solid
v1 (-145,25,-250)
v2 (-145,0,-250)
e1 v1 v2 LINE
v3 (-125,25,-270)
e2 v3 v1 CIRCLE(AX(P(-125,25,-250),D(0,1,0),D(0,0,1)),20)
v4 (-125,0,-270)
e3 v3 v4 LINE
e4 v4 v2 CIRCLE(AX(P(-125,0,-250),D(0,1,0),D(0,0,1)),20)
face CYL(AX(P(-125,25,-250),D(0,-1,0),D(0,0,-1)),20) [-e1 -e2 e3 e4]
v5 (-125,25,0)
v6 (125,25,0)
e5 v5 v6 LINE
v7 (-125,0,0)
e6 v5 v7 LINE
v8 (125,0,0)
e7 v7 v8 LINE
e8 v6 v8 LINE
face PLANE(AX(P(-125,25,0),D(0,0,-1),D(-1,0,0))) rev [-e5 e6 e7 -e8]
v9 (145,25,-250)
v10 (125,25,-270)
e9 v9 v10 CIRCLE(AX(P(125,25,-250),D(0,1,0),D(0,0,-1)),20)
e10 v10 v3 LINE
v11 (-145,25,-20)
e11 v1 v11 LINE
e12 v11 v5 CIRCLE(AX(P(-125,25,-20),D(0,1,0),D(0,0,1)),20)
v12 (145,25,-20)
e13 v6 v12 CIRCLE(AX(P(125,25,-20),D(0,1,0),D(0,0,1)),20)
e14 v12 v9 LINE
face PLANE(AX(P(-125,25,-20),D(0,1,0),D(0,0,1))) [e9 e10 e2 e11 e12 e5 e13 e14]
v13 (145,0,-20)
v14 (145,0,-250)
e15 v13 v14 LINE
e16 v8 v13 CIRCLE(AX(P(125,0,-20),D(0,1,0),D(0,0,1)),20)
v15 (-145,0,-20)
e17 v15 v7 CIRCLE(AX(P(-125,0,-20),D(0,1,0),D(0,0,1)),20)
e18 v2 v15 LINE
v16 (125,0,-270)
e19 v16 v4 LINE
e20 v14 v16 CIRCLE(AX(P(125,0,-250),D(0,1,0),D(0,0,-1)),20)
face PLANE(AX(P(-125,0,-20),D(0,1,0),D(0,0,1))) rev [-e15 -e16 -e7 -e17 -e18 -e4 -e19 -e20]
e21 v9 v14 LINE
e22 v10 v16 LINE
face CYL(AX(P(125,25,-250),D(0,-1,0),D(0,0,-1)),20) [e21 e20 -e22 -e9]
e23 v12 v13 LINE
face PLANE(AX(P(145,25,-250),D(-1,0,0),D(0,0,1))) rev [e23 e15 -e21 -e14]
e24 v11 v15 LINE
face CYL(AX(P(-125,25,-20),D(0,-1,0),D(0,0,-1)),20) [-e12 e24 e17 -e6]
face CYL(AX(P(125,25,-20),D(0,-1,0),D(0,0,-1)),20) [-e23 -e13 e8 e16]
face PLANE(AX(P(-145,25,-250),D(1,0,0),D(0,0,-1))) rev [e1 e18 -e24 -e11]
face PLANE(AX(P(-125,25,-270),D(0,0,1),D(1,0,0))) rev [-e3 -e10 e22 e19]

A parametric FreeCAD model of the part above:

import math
import FreeCAD as App
import Part
import Sketcher
Q = App.Units.Quantity

doc = App.newDocument("Part")
body = doc.addObject("PartDesign::Body", "Body")

# Sketch on XZ plane
sketch1 = body.newObject("Sketcher::SketchObject", "Sketch")
sketch1.AttachmentSupport = (doc.getObject("XZ_Plane"), [""])
sketch1.MapMode = "FlatFace"
sketch1.addGeometry(Part.LineSegment(App.Vector(125, -270, 0), App.Vector(-125, -270, 0)), False)
sketch1.addGeometry(Part.ArcOfCircle(Part.Circle(App.Vector(-125, -250, 0), App.Vector(0, 0, 1), 20), math.radians(180), math.radians(270)), False)
sketch1.addGeometry(Part.LineSegment(App.Vector(-145, -250, 0), App.Vector(-145, -20, 0)), False)
sketch1.addGeometry(Part.ArcOfCircle(Part.Circle(App.Vector(-125, -20, 0), App.Vector(0, 0, 1), 20), math.radians(90), math.radians(180)), False)
sketch1.addGeometry(Part.LineSegment(App.Vector(-125, 0, 0), App.Vector(125, 0, 0)), False)
sketch1.addGeometry(Part.ArcOfCircle(Part.Circle(App.Vector(125, -20, 0), App.Vector(0, 0, 1), 20), math.radians(0), math.radians(90)), False)
sketch1.addGeometry(Part.LineSegment(App.Vector(145, -20, 0), App.Vector(145, -250, 0)), False)
sketch1.addGeometry(Part.ArcOfCircle(Part.Circle(App.Vector(125, -250, 0), App.Vector(0, 0, 1), 20), math.radians(-90), math.radians(0)), False)
sketch1.addConstraint(Sketcher.Constraint("Tangent", 0, 2, 1, 2))
sketch1.addConstraint(Sketcher.Constraint("Tangent", 1, 1, 2, 1))
sketch1.addConstraint(Sketcher.Constraint("Tangent", 2, 2, 3, 2))
sketch1.addConstraint(Sketcher.Constraint("Tangent", 3, 1, 4, 1))
sketch1.addConstraint(Sketcher.Constraint("Tangent", 4, 2, 5, 2))
sketch1.addConstraint(Sketcher.Constraint("Tangent", 5, 1, 6, 1))
sketch1.addConstraint(Sketcher.Constraint("Tangent", 6, 2, 7, 2))
sketch1.addConstraint(Sketcher.Constraint("Tangent", 7, 1, 0, 1))
sketch1.addConstraint(Sketcher.Constraint("Horizontal", 0))
sketch1.addConstraint(Sketcher.Constraint("Vertical", 2))
sketch1.addConstraint(Sketcher.Constraint("Horizontal", 4))
sketch1.addConstraint(Sketcher.Constraint("Vertical", 6))
sketch1.addConstraint(Sketcher.Constraint("Equal", 1, 3))
sketch1.addConstraint(Sketcher.Constraint("Equal", 3, 5))
sketch1.addConstraint(Sketcher.Constraint("Equal", 5, 7))
sketch1.addConstraint(Sketcher.Constraint("Symmetric", 3, 1, 4, 2, -1, 1))
sketch1.addConstraint(Sketcher.Constraint("Radius", 1, Q("20 mm")))
sketch1.addConstraint(Sketcher.Constraint("DistanceX", 0, 2, 0, 1, Q("250 mm")))
sketch1.addConstraint(Sketcher.Constraint("DistanceY", 2, 1, 2, 2, Q("230 mm")))
pad1 = body.newObject("PartDesign::Pad", "Pad")
pad1.Profile = sketch1
pad1.Length = 25
pad1.Reversed = True

doc.recompute()
